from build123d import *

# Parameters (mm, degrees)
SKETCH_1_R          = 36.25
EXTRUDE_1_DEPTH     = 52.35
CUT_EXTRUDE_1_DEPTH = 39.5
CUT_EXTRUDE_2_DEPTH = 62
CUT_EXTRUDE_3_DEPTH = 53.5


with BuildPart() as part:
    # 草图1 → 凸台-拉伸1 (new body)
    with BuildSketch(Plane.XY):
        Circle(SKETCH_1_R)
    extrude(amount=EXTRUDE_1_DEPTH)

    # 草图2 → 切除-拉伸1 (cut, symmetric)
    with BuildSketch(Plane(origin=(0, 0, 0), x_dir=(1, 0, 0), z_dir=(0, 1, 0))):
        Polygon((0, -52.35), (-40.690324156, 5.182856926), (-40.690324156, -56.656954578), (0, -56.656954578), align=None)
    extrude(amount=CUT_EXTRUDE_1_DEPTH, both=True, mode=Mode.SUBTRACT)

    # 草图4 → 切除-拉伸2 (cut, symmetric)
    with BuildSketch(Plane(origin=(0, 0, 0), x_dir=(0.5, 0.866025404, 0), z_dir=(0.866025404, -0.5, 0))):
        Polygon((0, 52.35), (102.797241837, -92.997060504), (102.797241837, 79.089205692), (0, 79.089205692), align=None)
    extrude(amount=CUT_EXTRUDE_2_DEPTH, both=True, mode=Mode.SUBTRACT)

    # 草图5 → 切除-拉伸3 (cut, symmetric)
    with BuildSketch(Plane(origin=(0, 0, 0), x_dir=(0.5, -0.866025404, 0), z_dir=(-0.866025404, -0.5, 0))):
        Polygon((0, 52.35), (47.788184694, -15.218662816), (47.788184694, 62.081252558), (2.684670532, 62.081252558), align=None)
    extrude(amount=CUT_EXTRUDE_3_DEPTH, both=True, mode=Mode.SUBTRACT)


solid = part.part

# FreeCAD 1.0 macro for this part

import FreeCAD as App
import Part
import Sketcher

V = App.Vector
Q = App.Units.Quantity


def add_polygon(sketch, points):
    """Adds a closed chain of lines whose ends are joined by coincident constraints."""
    first, n = sketch.GeometryCount, len(points)
    for a, b in zip(points, points[1:] + points[:1]):
        sketch.addGeometry(Part.LineSegment(App.Vector(*a, 0), App.Vector(*b, 0)), False)
    for i in range(n):
        sketch.addConstraint(Sketcher.Constraint("Coincident", first + i, 2, first + (i + 1) % n, 1))

doc = App.newDocument("Part")
body = doc.addObject("PartDesign::Body", "Body")

sketch1 = body.newObject("Sketcher::SketchObject", "Sketch")
sketch1.AttachmentSupport = (doc.getObject("XY_Plane"), [""])
sketch1.MapMode = "FlatFace"
sketch1.addGeometry(Part.Circle(V(0, 0, 0), V(0, 0, 1), 36.25), False)
sketch1.addConstraint([
    Sketcher.Constraint("Coincident", 0, 3, -1, 1),
    Sketcher.Constraint("Diameter", 0, Q("72.5 mm")),
])
pad1 = body.newObject("PartDesign::Pad", "Pad")
pad1.Profile = sketch1
pad1.Length = 52.35

sketch2 = body.newObject("Sketcher::SketchObject", "Sketch001")
sketch2.AttachmentSupport = (doc.getObject("XZ_Plane"), [""])
sketch2.MapMode = "FlatFace"
add_polygon(sketch2, [(0, 52.35), (-40.690324, -5.182857), (-40.690324, 56.656955), (0, 56.656955)])
sketch2.addConstraint([
    Sketcher.Constraint("Vertical", 1),
    Sketcher.Constraint("Horizontal", 2),
    Sketcher.Constraint("Vertical", 3),
    Sketcher.Constraint("PointOnObject", 2, 2, -2),
    Sketcher.Constraint("Angle", 0, Q("-125.27 deg")),
    Sketcher.Constraint("DistanceY", -1, 1, 3, 2, Q("52.35 mm")),
    Sketcher.Constraint("DistanceY", 1, 1, 1, 2, Q("61.839812 mm")),
    Sketcher.Constraint("Distance", 0, Q("70.467951 mm")),
])
pocket1 = body.newObject("PartDesign::Pocket", "Pocket")
pocket1.Profile = sketch2
pocket1.Length = 79
pocket1.Midplane = True

sketch3 = body.newObject("Sketcher::SketchObject", "Sketch002")
sketch3.Placement = App.Placement(V(0, 0, 0), App.Rotation(V(0.5, 0.866025404, 0), V(0, 0, 1), V(0.866025404, -0.5, 0), "ZXY"))
add_polygon(sketch3, [(0, 52.35), (102.797242, -92.997061), (102.797242, 79.089206), (0, 79.089206)])
sketch3.addConstraint([
    Sketcher.Constraint("Vertical", 1),
    Sketcher.Constraint("Horizontal", 2),
    Sketcher.Constraint("Vertical", 3),
    Sketcher.Constraint("PointOnObject", 2, 2, -2),
    Sketcher.Constraint("Angle", 0, Q("-54.73 deg")),
    Sketcher.Constraint("DistanceY", -1, 1, 3, 2, Q("52.35 mm")),
    Sketcher.Constraint("DistanceX", 2, 2, 2, 1, Q("102.797242 mm")),
    Sketcher.Constraint("DistanceY", 1, 1, 1, 2, Q("172.086266 mm")),
])
pocket2 = body.newObject("PartDesign::Pocket", "Pocket001")
pocket2.Profile = sketch3
pocket2.Length = 124
pocket2.Midplane = True

sketch4 = body.newObject("Sketcher::SketchObject", "Sketch003")
sketch4.Placement = App.Placement(V(0, 0, 0), App.Rotation(V(0.5, -0.866025404, 0), V(0, 0, 1), V(-0.866025404, -0.5, 0), "ZXY"))
add_polygon(sketch4, [(0, 52.35), (47.788185, -15.218663), (47.788185, 62.081253), (2.684671, 62.081253)])
sketch4.addConstraint([
    Sketcher.Constraint("Vertical", 1),
    Sketcher.Constraint("Horizontal", 2),
    Sketcher.Constraint("PointOnObject", 3, 2, -2),
    Sketcher.Constraint("Angle", 0, Q("-54.73 deg")),
    Sketcher.Constraint("DistanceY", -1, 1, 3, 2, Q("52.35 mm")),
    Sketcher.Constraint("DistanceX", 2, 2, 2, 1, Q("45.103514 mm")),
    Sketcher.Constraint("DistanceY", 1, 1, 1, 2, Q("77.299915 mm")),
    Sketcher.Constraint("DistanceX", -1, 1, 2, 2, Q("2.684671 mm")),
])
pocket3 = body.newObject("PartDesign::Pocket", "Pocket002")
pocket3.Profile = sketch4
pocket3.Length = 107
pocket3.Midplane = True

doc.recompute()
